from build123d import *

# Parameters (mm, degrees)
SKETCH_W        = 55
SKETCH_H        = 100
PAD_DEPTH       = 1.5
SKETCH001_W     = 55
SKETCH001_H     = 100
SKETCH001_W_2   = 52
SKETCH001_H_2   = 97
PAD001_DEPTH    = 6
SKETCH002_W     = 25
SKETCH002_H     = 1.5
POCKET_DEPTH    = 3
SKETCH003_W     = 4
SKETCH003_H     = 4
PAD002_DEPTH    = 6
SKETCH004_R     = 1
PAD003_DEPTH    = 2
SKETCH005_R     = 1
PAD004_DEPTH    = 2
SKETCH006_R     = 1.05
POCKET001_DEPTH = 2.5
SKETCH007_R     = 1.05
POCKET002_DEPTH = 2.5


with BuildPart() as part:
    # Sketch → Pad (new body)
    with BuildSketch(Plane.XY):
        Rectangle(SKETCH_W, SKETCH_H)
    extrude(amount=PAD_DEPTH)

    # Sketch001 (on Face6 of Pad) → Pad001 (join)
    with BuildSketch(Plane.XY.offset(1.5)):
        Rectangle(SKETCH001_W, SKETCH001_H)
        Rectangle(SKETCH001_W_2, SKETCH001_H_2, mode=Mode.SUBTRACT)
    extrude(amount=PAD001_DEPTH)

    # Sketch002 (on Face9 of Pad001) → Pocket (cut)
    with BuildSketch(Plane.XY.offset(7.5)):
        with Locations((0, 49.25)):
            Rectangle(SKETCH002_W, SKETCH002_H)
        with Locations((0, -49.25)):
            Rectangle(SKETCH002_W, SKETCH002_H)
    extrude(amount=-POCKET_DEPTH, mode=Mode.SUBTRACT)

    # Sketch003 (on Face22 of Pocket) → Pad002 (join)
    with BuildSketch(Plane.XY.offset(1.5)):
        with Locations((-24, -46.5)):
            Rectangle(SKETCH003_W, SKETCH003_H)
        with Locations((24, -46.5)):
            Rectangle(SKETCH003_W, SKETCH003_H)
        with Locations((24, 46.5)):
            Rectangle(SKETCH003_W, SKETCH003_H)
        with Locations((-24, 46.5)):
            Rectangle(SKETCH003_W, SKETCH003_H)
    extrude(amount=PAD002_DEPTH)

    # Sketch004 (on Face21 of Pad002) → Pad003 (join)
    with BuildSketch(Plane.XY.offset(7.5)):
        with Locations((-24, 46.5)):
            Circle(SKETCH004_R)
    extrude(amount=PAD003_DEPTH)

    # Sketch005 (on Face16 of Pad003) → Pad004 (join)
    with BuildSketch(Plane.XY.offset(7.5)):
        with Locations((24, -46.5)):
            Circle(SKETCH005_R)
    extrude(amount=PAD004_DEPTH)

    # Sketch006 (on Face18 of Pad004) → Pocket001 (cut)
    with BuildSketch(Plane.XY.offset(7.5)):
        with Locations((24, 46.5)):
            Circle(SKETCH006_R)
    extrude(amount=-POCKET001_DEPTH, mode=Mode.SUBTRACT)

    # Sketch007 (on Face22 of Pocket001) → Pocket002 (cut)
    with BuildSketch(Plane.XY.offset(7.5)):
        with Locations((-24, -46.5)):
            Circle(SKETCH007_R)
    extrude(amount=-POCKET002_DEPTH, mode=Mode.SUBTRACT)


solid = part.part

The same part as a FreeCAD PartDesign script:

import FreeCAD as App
import Part
import Sketcher
from FreeCAD import Vector


def add_polygon(sketch, points):
    """Adds a closed chain of lines whose ends are joined by coincident constraints."""
    first, n = sketch.GeometryCount, len(points)
    for a, b in zip(points, points[1:] + points[:1]):
        sketch.addGeometry(Part.LineSegment(App.Vector(*a, 0), App.Vector(*b, 0)), False)
    for i in range(n):
        sketch.addConstraint(Sketcher.Constraint("Coincident", first + i, 2, first + (i + 1) % n, 1))

doc = App.newDocument("Part")
body = doc.addObject("PartDesign::Body", "Body")

sketch1 = body.newObject("Sketcher::SketchObject", "Sketch")
sketch1.AttachmentSupport = (doc.getObject("XY_Plane"), [""])
sketch1.MapMode = "FlatFace"
add_polygon(sketch1, [(-27.5, 50), (-27.5, -50), (27.5, -50), (27.5, 50)])
sketch1.addConstraint([
    Sketcher.Constraint("Vertical", 0),
    Sketcher.Constraint("Horizontal", 1),
    Sketcher.Constraint("Vertical", 2),
    Sketcher.Constraint("Horizontal", 3),
    Sketcher.Constraint("Symmetric", 0, 2, 2, 2, -1, 1),
    Sketcher.Constraint("DistanceX", 1, 1, 1, 2, 55.0),
    Sketcher.Constraint("DistanceY", 0, 2, 0, 1, 100.0),
])
pad1 = body.newObject("PartDesign::Pad", "Pad")
pad1.Profile = sketch1
pad1.Length = 1.5

sketch2 = body.newObject("Sketcher::SketchObject", "Sketch001")
sketch2.AttachmentSupport = (doc.getObject("XY_Plane"), [""])
sketch2.MapMode = "FlatFace"
sketch2.AttachmentOffset = App.Placement(Vector(0, 0, 1.5), App.Rotation())
add_polygon(sketch2, [(-27.5, 50), (-27.5, -50), (27.5, -50), (27.5, 50)])
add_polygon(sketch2, [(26, -48.5), (-26, -48.5), (-26, 48.5), (26, 48.5)])
sketch2.addConstraint([
    Sketcher.Constraint("Vertical", 0),
    Sketcher.Constraint("Horizontal", 1),
    Sketcher.Constraint("Vertical", 2),
    Sketcher.Constraint("Horizontal", 3),
    Sketcher.Constraint("Horizontal", 4),
    Sketcher.Constraint("Vertical", 5),
    Sketcher.Constraint("Horizontal", 6),
    Sketcher.Constraint("Vertical", 7),
    Sketcher.Constraint("Symmetric", 0, 2, 2, 2, -1, 1),
    Sketcher.Constraint("Symmetric", 4, 2, 6, 2, -1, 1),
    Sketcher.Constraint("DistanceX", 1, 1, 1, 2, 55.0),
    Sketcher.Constraint("DistanceX", 4, 2, 4, 1, 52.0),
    Sketcher.Constraint("DistanceY", 0, 2, 0, 1, 100.0),
    Sketcher.Constraint("DistanceY", 5, 1, 5, 2, 97.0),
])
pad2 = body.newObject("PartDesign::Pad", "Pad001")
pad2.Profile = sketch2
pad2.Length = 6

sketch3 = body.newObject("Sketcher::SketchObject", "Sketch002")
sketch3.AttachmentSupport = (doc.getObject("XY_Plane"), [""])
sketch3.MapMode = "FlatFace"
sketch3.AttachmentOffset = App.Placement(Vector(0, 0, 7.5), App.Rotation())
add_polygon(sketch3, [(-12.5, 50), (-12.5, 48.5), (12.5, 48.5), (12.5, 50)])
add_polygon(sketch3, [(-12.5, -48.5), (-12.5, -50), (12.5, -50), (12.5, -48.5)])
sketch3.addConstraint([
    Sketcher.Constraint("Vertical", 0),
    Sketcher.Constraint("Horizontal", 1),
    Sketcher.Constraint("Vertical", 2),
    Sketcher.Constraint("Horizontal", 3),
    Sketcher.Constraint("Vertical", 4),
    Sketcher.Constraint("Horizontal", 5),
    Sketcher.Constraint("Vertical", 6),
    Sketcher.Constraint("Horizontal", 7),
    Sketcher.Constraint("Symmetric", 2, 2, 4, 2, -1, 1),
    Sketcher.Constraint("Symmetric", 0, 2, 6, 2, -1, 1),
    Sketcher.Constraint("Vertical", 3, 2, 4, 2),
    Sketcher.Constraint("DistanceX", 1, 1, 1, 2, 25.0),
    Sketcher.Constraint("DistanceY", 0, 2, 0, 1, 1.5),
    Sketcher.Constraint("DistanceY", -1, 1, 2, 2, 50.0),
])
pocket1 = body.newObject("PartDesign::Pocket", "Pocket")
pocket1.Profile = sketch3
pocket1.Length = 3

sketch4 = body.newObject("Sketcher::SketchObject", "Sketch003")
sketch4.AttachmentSupport = (doc.getObject("XY_Plane"), [""])
sketch4.MapMode = "FlatFace"
sketch4.AttachmentOffset = App.Placement(Vector(0, 0, 1.5), App.Rotation())
add_polygon(sketch4, [(-26, -44.5), (-26, -48.5), (-22, -48.5), (-22, -44.5)])
add_polygon(sketch4, [(22, -44.5), (22, -48.5), (26, -48.5), (26, -44.5)])
add_polygon(sketch4, [(22, 48.5), (22, 44.5), (26, 44.5), (26, 48.5)])
add_polygon(sketch4, [(-26, 48.5), (-26, 44.5), (-22, 44.5), (-22, 48.5)])
sketch4.addConstraint([
    Sketcher.Constraint("Vertical", 0),
    Sketcher.Constraint("Horizontal", 1),
    Sketcher.Constraint("Vertical", 2),
    Sketcher.Constraint("Horizontal", 3),
    Sketcher.Constraint("Vertical", 4),
    Sketcher.Constraint("Horizontal", 5),
    Sketcher.Constraint("Vertical", 6),
    Sketcher.Constraint("Horizontal", 7),
    Sketcher.Constraint("Vertical", 8),
    Sketcher.Constraint("Horizontal", 9),
    Sketcher.Constraint("Vertical", 10),
    Sketcher.Constraint("Horizontal", 11),
    Sketcher.Constraint("Vertical", 12),
    Sketcher.Constraint("Horizontal", 13),
    Sketcher.Constraint("Vertical", 14),
    Sketcher.Constraint("Horizontal", 15),
    Sketcher.Constraint("Symmetric", 2, 2, 8, 2, -1, 1),
    Sketcher.Constraint("Symmetric", 0, 2, 10, 2, -1, 1),
    Sketcher.Constraint("Symmetric", 6, 2, 12, 2, -1, 1),
    Sketcher.Constraint("Symmetric", 4, 2, 14, 2, -1, 1),
    Sketcher.Constraint("Symmetric", 1, 2, 4, 2, -2),
    Sketcher.Constraint("Symmetric", 3, 2, 6, 2, -2),
    Sketcher.Constraint("Equal", 15, 0),
    Sketcher.Constraint("DistanceX", 1, 1, 1, 2, 4.0),
    Sketcher.Constraint("DistanceX", 0, 2, -1, 1, 26.0),
    Sketcher.Constraint("DistanceY", 7, 2, 8, 2, 89.0),
])
pad3 = body.newObject("PartDesign::Pad", "Pad002")
pad3.Profile = sketch4
pad3.Length = 6

sketch5 = body.newObject("Sketcher::SketchObject", "Sketch004")
sketch5.AttachmentSupport = (doc.getObject("XY_Plane"), [""])
sketch5.MapMode = "FlatFace"
sketch5.AttachmentOffset = App.Placement(Vector(0, 0, 7.5), App.Rotation())
sketch5.addGeometry(Part.Circle(Vector(-24, 46.5, 0), Vector(0, 0, 1), 1), False)
sketch5.addConstraint([
    Sketcher.Constraint("Diameter", 0, 2.0),
    Sketcher.Constraint("DistanceX", 0, 3, -1, 1, 24.0),
    Sketcher.Constraint("DistanceY", -1, 1, 0, 3, 46.5),
])
pad4 = body.newObject("PartDesign::Pad", "Pad003")
pad4.Profile = sketch5
pad4.Length = 2

sketch6 = body.newObject("Sketcher::SketchObject", "Sketch005")
sketch6.AttachmentSupport = (doc.getObject("XY_Plane"), [""])
sketch6.MapMode = "FlatFace"
sketch6.AttachmentOffset = App.Placement(Vector(0, 0, 7.5), App.Rotation())
sketch6.addGeometry(Part.Circle(Vector(24, -46.5, 0), Vector(0, 0, 1), 1), False)
sketch6.addConstraint([
    Sketcher.Constraint("Diameter", 0, 2.0),
    Sketcher.Constraint("DistanceX", -1, 1, 0, 3, 24.0),
    Sketcher.Constraint("DistanceY", 0, 3, -1, 1, 46.5),
])
pad5 = body.newObject("PartDesign::Pad", "Pad004")
pad5.Profile = sketch6
pad5.Length = 2

sketch7 = body.newObject("Sketcher::SketchObject", "Sketch006")
sketch7.AttachmentSupport = (doc.getObject("XY_Plane"), [""])
sketch7.MapMode = "FlatFace"
sketch7.AttachmentOffset = App.Placement(Vector(0, 0, 7.5), App.Rotation())
sketch7.addGeometry(Part.Circle(Vector(24, 46.5, 0), Vector(0, 0, 1), 1.05), False)
sketch7.addConstraint([
    Sketcher.Constraint("Diameter", 0, 2.1),
    Sketcher.Constraint("DistanceX", -1, 1, 0, 3, 24.0),
    Sketcher.Constraint("DistanceY", -1, 1, 0, 3, 46.5),
])
pocket2 = body.newObject("PartDesign::Pocket", "Pocket001")
pocket2.Profile = sketch7
pocket2.Length = 2.5

sketch8 = body.newObject("Sketcher::SketchObject", "Sketch007")
sketch8.AttachmentSupport = (doc.getObject("XY_Plane"), [""])
sketch8.MapMode = "FlatFace"
sketch8.AttachmentOffset = App.Placement(Vector(0, 0, 7.5), App.Rotation())
sketch8.addGeometry(Part.Circle(Vector(-24, -46.5, 0), Vector(0, 0, 1), 1.05), False)
sketch8.addConstraint([
    Sketcher.Constraint("Diameter", 0, 2.1),
    Sketcher.Constraint("DistanceX", 0, 3, -1, 1, 24.0),
    Sketcher.Constraint("DistanceY", 0, 3, -1, 1, 46.5),
])
pocket3 = body.newObject("PartDesign::Pocket", "Pocket002")
pocket3.Profile = sketch8
pocket3.Length = 2.5

doc.recompute()
